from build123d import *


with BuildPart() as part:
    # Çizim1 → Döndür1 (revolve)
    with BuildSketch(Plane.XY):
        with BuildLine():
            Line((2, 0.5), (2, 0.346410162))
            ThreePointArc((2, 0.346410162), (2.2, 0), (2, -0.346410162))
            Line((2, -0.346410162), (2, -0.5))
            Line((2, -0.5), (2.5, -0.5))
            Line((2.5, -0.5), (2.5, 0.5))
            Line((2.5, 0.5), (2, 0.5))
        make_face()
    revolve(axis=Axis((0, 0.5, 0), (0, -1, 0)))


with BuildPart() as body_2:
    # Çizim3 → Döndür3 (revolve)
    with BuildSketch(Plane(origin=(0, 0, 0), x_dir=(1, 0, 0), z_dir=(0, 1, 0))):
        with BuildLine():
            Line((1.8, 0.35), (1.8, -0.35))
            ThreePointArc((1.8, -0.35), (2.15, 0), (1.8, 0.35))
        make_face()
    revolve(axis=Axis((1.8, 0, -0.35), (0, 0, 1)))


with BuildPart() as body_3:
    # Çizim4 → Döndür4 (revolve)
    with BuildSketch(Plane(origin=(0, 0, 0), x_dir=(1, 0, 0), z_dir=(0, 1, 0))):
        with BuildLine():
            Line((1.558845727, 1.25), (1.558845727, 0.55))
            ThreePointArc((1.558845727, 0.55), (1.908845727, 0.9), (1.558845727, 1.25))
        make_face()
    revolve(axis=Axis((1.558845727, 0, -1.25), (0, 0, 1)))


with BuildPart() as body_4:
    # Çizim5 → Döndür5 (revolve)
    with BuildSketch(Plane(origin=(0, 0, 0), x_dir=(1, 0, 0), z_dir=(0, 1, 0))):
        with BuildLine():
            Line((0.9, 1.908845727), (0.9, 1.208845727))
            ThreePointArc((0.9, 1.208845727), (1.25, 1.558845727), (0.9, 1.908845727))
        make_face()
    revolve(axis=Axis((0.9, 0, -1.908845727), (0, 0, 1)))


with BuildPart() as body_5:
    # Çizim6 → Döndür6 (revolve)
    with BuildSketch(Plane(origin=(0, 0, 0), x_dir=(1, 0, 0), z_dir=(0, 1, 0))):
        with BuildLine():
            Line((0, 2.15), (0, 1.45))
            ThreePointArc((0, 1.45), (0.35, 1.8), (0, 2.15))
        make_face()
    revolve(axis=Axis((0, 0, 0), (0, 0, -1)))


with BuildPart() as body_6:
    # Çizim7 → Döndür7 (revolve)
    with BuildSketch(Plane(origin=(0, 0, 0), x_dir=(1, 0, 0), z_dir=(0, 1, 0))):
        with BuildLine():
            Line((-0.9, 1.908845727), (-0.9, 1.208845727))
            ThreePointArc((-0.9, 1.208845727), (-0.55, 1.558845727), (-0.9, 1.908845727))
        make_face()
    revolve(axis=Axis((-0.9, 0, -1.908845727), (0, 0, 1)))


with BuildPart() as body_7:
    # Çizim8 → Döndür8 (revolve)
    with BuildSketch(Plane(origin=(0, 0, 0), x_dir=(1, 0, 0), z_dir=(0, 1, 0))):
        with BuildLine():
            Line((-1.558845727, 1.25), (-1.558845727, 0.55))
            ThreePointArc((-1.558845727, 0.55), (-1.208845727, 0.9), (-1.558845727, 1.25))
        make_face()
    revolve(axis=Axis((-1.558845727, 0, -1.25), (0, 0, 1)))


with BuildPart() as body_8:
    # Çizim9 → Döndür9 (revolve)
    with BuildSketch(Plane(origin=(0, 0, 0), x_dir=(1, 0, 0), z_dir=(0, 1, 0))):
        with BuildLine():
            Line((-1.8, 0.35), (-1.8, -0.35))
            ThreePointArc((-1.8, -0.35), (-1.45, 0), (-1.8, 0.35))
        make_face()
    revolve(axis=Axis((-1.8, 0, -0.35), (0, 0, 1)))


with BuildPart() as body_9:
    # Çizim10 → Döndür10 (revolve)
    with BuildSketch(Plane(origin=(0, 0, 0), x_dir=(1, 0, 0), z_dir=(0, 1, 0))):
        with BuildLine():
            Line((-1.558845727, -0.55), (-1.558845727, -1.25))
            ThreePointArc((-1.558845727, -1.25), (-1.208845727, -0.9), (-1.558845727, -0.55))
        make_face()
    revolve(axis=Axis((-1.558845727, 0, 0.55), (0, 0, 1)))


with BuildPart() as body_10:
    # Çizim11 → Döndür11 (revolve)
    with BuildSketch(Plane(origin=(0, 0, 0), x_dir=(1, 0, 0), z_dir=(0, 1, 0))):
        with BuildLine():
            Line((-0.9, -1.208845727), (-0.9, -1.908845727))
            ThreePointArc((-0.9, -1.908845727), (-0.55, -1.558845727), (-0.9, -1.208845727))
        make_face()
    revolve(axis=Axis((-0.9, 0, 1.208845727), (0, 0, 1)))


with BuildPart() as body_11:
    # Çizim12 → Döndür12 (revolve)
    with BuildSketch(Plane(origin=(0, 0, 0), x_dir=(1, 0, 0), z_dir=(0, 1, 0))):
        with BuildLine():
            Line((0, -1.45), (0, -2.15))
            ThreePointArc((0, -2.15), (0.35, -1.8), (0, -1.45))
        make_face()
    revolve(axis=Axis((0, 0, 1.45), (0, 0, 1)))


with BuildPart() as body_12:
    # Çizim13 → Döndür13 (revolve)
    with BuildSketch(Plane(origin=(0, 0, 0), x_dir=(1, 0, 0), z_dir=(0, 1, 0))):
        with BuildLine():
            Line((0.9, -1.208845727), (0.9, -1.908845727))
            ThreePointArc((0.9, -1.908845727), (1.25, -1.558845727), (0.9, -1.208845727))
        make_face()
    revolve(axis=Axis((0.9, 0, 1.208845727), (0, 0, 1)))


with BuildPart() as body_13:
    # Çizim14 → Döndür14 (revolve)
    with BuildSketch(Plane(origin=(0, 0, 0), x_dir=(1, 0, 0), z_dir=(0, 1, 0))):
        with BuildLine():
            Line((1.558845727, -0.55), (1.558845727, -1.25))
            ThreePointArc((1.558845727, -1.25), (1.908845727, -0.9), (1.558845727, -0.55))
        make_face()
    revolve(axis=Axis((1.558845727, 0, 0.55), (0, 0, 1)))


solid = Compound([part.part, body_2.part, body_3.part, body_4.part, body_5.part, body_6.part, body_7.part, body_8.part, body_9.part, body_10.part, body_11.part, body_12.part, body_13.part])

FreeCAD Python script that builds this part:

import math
import FreeCAD as App
import Part
import Sketcher

V = App.Vector

doc = App.newDocument("Part")
body = doc.addObject("PartDesign::Body", "Body")

sketch1 = doc.addObject("Sketcher::SketchObject", "Sketch")
body.addObject(sketch1)
sketch1.AttachmentSupport = (doc.XY_Plane, [""])
sketch1.MapMode = "FlatFace"
sketch1.addGeometry([
    Part.LineSegment(V(2, 0.5, 0), V(2, 0.34641, 0)),
    Part.ArcOfCircle(Part.Circle(V(1.8, 0, 0), V(0, 0, 1), 0.4), math.radians(-60), math.radians(60)),
    Part.LineSegment(V(2, -0.34641, 0), V(2, -0.5, 0)),
    Part.LineSegment(V(2, -0.5, 0), V(2.5, -0.5, 0)),
    Part.LineSegment(V(2.5, -0.5, 0), V(2.5, 0.5, 0)),
    Part.LineSegment(V(2.5, 0.5, 0), V(2, 0.5, 0)),
], False)
sketch1.addConstraint([
    Sketcher.Constraint("Coincident", 0, 2, 1, 2),
    Sketcher.Constraint("Coincident", 1, 1, 2, 1),
    Sketcher.Constraint("Coincident", 2, 2, 3, 1),
    Sketcher.Constraint("Coincident", 3, 2, 4, 1),
    Sketcher.Constraint("Coincident", 4, 2, 5, 1),
    Sketcher.Constraint("Coincident", 5, 2, 0, 1),
    Sketcher.Constraint("Vertical", 0),
    Sketcher.Constraint("Vertical", 2),
    Sketcher.Constraint("Horizontal", 3),
    Sketcher.Constraint("Vertical", 4),
    Sketcher.Constraint("Horizontal", 5),
    Sketcher.Constraint("Symmetric", 0, 2, 1, 1, -1),
    Sketcher.Constraint("Equal", 0, 2),
    Sketcher.Constraint("Radius", 1, 0.4),
    Sketcher.Constraint("DistanceY", 4, 1, 4, 2, 1.0),
    Sketcher.Constraint("DistanceX", 3, 1, 3, 2, 0.5),
    Sketcher.Constraint("DistanceX", -1, 1, 0, 2, 2.0),
    Sketcher.Constraint("DistanceX", -1, 1, 1, 3, 1.8),
])
revolution = doc.addObject("PartDesign::Revolution", "Revolution")
body.addObject(revolution)
revolution.Profile = sketch1
revolution.ReferenceAxis = (sketch1, ["V_Axis"])
revolution.Angle = 360
body2 = doc.addObject("PartDesign::Body", "Body001")

sketch2 = doc.addObject("Sketcher::SketchObject", "Sketch001")
body2.addObject(sketch2)
sketch2.AttachmentSupport = (doc.getObject("XZ_Plane001"), [""])
sketch2.MapMode = "FlatFace"
sketch2.addGeometry([
    Part.LineSegment(V(1.8, -0.35, 0), V(1.8, 0.35, 0)),
    Part.ArcOfCircle(Part.Circle(V(1.8, 0, 0), V(0, 0, 1), 0.35), math.radians(-90), math.radians(90)),
], False)
sketch2.addGeometry(Part.LineSegment(V(1.8, -0.35, 0), V(1.8, 0.35, 0)), True)
sketch2.addConstraint([
    Sketcher.Constraint("Coincident", 0, 1, 1, 1),
    Sketcher.Constraint("Coincident", 1, 2, 0, 2),
    Sketcher.Constraint("Vertical", 0),
    Sketcher.Constraint("Vertical", 2),
    Sketcher.Constraint("Coincident", 2, 1, 0, 1),
    Sketcher.Constraint("PointOnObject", 1, 3, -1),
    Sketcher.Constraint("Vertical", 1, 3, 0, 1),
    Sketcher.Constraint("Equal", 0, 2),
    Sketcher.Constraint("Radius", 1, 0.35),
    Sketcher.Constraint("DistanceX", -1, 1, 1, 3, 1.8),
])
revolution2 = doc.addObject("PartDesign::Revolution", "Revolution001")
body2.addObject(revolution2)
revolution2.Profile = sketch2
revolution2.ReferenceAxis = (sketch2, ["Axis0"])
revolution2.Angle = 360
body3 = doc.addObject("PartDesign::Body", "Body002")

sketch3 = doc.addObject("Sketcher::SketchObject", "Sketch002")
body3.addObject(sketch3)
sketch3.AttachmentSupport = (doc.getObject("XZ_Plane002"), [""])
sketch3.MapMode = "FlatFace"
sketch3.addGeometry([
    Part.LineSegment(V(1.558846, -1.25, 0), V(1.558846, -0.55, 0)),
    Part.ArcOfCircle(Part.Circle(V(1.558846, -0.9, 0), V(0, 0, 1), 0.35), math.radians(-90), math.radians(90)),
], False)
sketch3.addGeometry(Part.LineSegment(V(1.558846, -1.25, 0), V(1.558846, -0.55, 0)), True)
sketch3.addConstraint([
    Sketcher.Constraint("Coincident", 0, 1, 1, 1),
    Sketcher.Constraint("Coincident", 1, 2, 0, 2),
    Sketcher.Constraint("Vertical", 0),
    Sketcher.Constraint("Vertical", 2),
    Sketcher.Constraint("Coincident", 2, 1, 0, 1),
    Sketcher.Constraint("Vertical", 1, 3, 0, 1),
    Sketcher.Constraint("Equal", 0, 2),
    Sketcher.Constraint("Radius", 1, 0.35),
    Sketcher.Constraint("DistanceY", 1, 3, -1, 1, 0.9),
    Sketcher.Constraint("DistanceX", -1, 1, 1, 3, 1.558846),
])
revolution3 = doc.addObject("PartDesign::Revolution", "Revolution002")
body3.addObject(revolution3)
revolution3.Profile = sketch3
revolution3.ReferenceAxis = (sketch3, ["Axis0"])
revolution3.Angle = 360
body4 = doc.addObject("PartDesign::Body", "Body003")

sketch4 = doc.addObject("Sketcher::SketchObject", "Sketch003")
body4.addObject(sketch4)
sketch4.AttachmentSupport = (doc.getObject("XZ_Plane003"), [""])
sketch4.MapMode = "FlatFace"
sketch4.addGeometry([
    Part.LineSegment(V(0.9, -1.908846, 0), V(0.9, -1.208846, 0)),
    Part.ArcOfCircle(Part.Circle(V(0.9, -1.558846, 0), V(0, 0, 1), 0.35), math.radians(-90), math.radians(90)),
], False)
sketch4.addGeometry(Part.LineSegment(V(0.9, -1.908846, 0), V(0.9, -1.208846, 0)), True)
sketch4.addConstraint([
    Sketcher.Constraint("Coincident", 0, 1, 1, 1),
    Sketcher.Constraint("Coincident", 1, 2, 0, 2),
    Sketcher.Constraint("Vertical", 0),
    Sketcher.Constraint("Vertical", 2),
    Sketcher.Constraint("Coincident", 2, 1, 0, 1),
    Sketcher.Constraint("Vertical", 1, 3, 0, 1),
    Sketcher.Constraint("Equal", 0, 2),
    Sketcher.Constraint("Radius", 1, 0.35),
    Sketcher.Constraint("DistanceX", -1, 1, 1, 3, 0.9),
    Sketcher.Constraint("DistanceY", 1, 3, -1, 1, 1.558846),
])
revolution4 = doc.addObject("PartDesign::Revolution", "Revolution003")
body4.addObject(revolution4)
revolution4.Profile = sketch4
revolution4.ReferenceAxis = (sketch4, ["Axis0"])
revolution4.Angle = 360
body5 = doc.addObject("PartDesign::Body", "Body004")

sketch5 = doc.addObject("Sketcher::SketchObject", "Sketch004")
body5.addObject(sketch5)
sketch5.AttachmentSupport = (doc.getObject("XZ_Plane004"), [""])
sketch5.MapMode = "FlatFace"
sketch5.addGeometry([
    Part.LineSegment(V(0, -2.15, 0), V(0, -1.45, 0)),
    Part.ArcOfCircle(Part.Circle(V(0, -1.8, 0), V(0, 0, 1), 0.35), math.radians(-90), math.radians(90)),
], False)
sketch5.addConstraint([
    Sketcher.Constraint("Coincident", 0, 1, 1, 1),
    Sketcher.Constraint("Coincident", 1, 2, 0, 2),
    Sketcher.Constraint("Vertical", 0),
    Sketcher.Constraint("PointOnObject", 1, 3, -2),
    Sketcher.Constraint("PointOnObject", 0, 1, -2),
    Sketcher.Constraint("Radius", 1, 0.35),
    Sketcher.Constraint("DistanceY", 1, 3, -1, 1, 1.8),
])
revolution5 = doc.addObject("PartDesign::Revolution", "Revolution004")
body5.addObject(revolution5)
revolution5.Profile = sketch5
revolution5.ReferenceAxis = (sketch5, ["V_Axis"])
revolution5.Angle = 360
body6 = doc.addObject("PartDesign::Body", "Body005")

sketch6 = doc.addObject("Sketcher::SketchObject", "Sketch005")
body6.addObject(sketch6)
sketch6.AttachmentSupport = (doc.getObject("XZ_Plane005"), [""])
sketch6.MapMode = "FlatFace"
sketch6.addGeometry([
    Part.LineSegment(V(-0.9, -1.908846, 0), V(-0.9, -1.208846, 0)),
    Part.ArcOfCircle(Part.Circle(V(-0.9, -1.558846, 0), V(0, 0, 1), 0.35), math.radians(-90), math.radians(90)),
], False)
sketch6.addGeometry(Part.LineSegment(V(-0.9, -1.908846, 0), V(-0.9, -1.208846, 0)), True)
sketch6.addConstraint([
    Sketcher.Constraint("Coincident", 0, 1, 1, 1),
    Sketcher.Constraint("Coincident", 1, 2, 0, 2),
    Sketcher.Constraint("Vertical", 0),
    Sketcher.Constraint("Vertical", 2),
    Sketcher.Constraint("Coincident", 2, 1, 0, 1),
    Sketcher.Constraint("Vertical", 1, 3, 0, 1),
    Sketcher.Constraint("Equal", 0, 2),
    Sketcher.Constraint("Radius", 1, 0.35),
    Sketcher.Constraint("DistanceX", 1, 3, -1, 1, 0.9),
    Sketcher.Constraint("DistanceY", 1, 3, -1, 1, 1.558846),
])
revolution6 = doc.addObject("PartDesign::Revolution", "Revolution005")
body6.addObject(revolution6)
revolution6.Profile = sketch6
revolution6.ReferenceAxis = (sketch6, ["Axis0"])
revolution6.Angle = 360
body7 = doc.addObject("PartDesign::Body", "Body006")

sketch7 = doc.addObject("Sketcher::SketchObject", "Sketch006")
body7.addObject(sketch7)
sketch7.AttachmentSupport = (doc.getObject("XZ_Plane006"), [""])
sketch7.MapMode = "FlatFace"
sketch7.addGeometry([
    Part.LineSegment(V(-1.558846, -1.25, 0), V(-1.558846, -0.55, 0)),
    Part.ArcOfCircle(Part.Circle(V(-1.558846, -0.9, 0), V(0, 0, 1), 0.35), math.radians(-90), math.radians(90)),
], False)
sketch7.addGeometry(Part.LineSegment(V(-1.558846, -1.25, 0), V(-1.558846, -0.55, 0)), True)
sketch7.addConstraint([
    Sketcher.Constraint("Coincident", 0, 1, 1, 1),
    Sketcher.Constraint("Coincident", 1, 2, 0, 2),
    Sketcher.Constraint("Vertical", 0),
    Sketcher.Constraint("Vertical", 2),
    Sketcher.Constraint("Coincident", 2, 1, 0, 1),
    Sketcher.Constraint("Vertical", 1, 3, 0, 1),
    Sketcher.Constraint("Equal", 0, 2),
    Sketcher.Constraint("Radius", 1, 0.35),
    Sketcher.Constraint("DistanceY", 1, 3, -1, 1, 0.9),
    Sketcher.Constraint("DistanceX", 1, 3, -1, 1, 1.558846),
])
revolution7 = doc.addObject("PartDesign::Revolution", "Revolution006")
body7.addObject(revolution7)
revolution7.Profile = sketch7
revolution7.ReferenceAxis = (sketch7, ["Axis0"])
revolution7.Angle = 360
body8 = doc.addObject("PartDesign::Body", "Body007")

sketch8 = doc.addObject("Sketcher::SketchObject", "Sketch007")
body8.addObject(sketch8)
sketch8.AttachmentSupport = (doc.getObject("XZ_Plane007"), [""])
sketch8.MapMode = "FlatFace"
sketch8.addGeometry([
    Part.LineSegment(V(-1.8, -0.35, 0), V(-1.8, 0.35, 0)),
    Part.ArcOfCircle(Part.Circle(V(-1.8, 0, 0), V(0, 0, 1), 0.35), math.radians(-90), math.radians(90)),
], False)
sketch8.addGeometry(Part.LineSegment(V(-1.8, -0.35, 0), V(-1.8, 0.35, 0)), True)
sketch8.addConstraint([
    Sketcher.Constraint("Coincident", 0, 1, 1, 1),
    Sketcher.Constraint("Coincident", 1, 2, 0, 2),
    Sketcher.Constraint("Vertical", 0),
    Sketcher.Constraint("Vertical", 2),
    Sketcher.Constraint("Coincident", 2, 1, 0, 1),
    Sketcher.Constraint("PointOnObject", 1, 3, -1),
    Sketcher.Constraint("Vertical", 1, 3, 0, 1),
    Sketcher.Constraint("Equal", 0, 2),
    Sketcher.Constraint("Radius", 1, 0.35),
    Sketcher.Constraint("DistanceX", 1, 3, -1, 1, 1.8),
])
revolution8 = doc.addObject("PartDesign::Revolution", "Revolution007")
body8.addObject(revolution8)
revolution8.Profile = sketch8
revolution8.ReferenceAxis = (sketch8, ["Axis0"])
revolution8.Angle = 360
body9 = doc.addObject("PartDesign::Body", "Body008")

sketch9 = doc.addObject("Sketcher::SketchObject", "Sketch008")
body9.addObject(sketch9)
sketch9.AttachmentSupport = (doc.getObject("XZ_Plane008"), [""])
sketch9.MapMode = "FlatFace"
sketch9.addGeometry([
    Part.LineSegment(V(-1.558846, 0.55, 0), V(-1.558846, 1.25, 0)),
    Part.ArcOfCircle(Part.Circle(V(-1.558846, 0.9, 0), V(0, 0, 1), 0.35), math.radians(-90), math.radians(90)),
], False)
sketch9.addGeometry(Part.LineSegment(V(-1.558846, 0.55, 0), V(-1.558846, 1.25, 0)), True)
sketch9.addConstraint([
    Sketcher.Constraint("Coincident", 0, 1, 1, 1),
    Sketcher.Constraint("Coincident", 1, 2, 0, 2),
    Sketcher.Constraint("Vertical", 0),
    Sketcher.Constraint("Vertical", 2),
    Sketcher.Constraint("Coincident", 2, 1, 0, 1),
    Sketcher.Constraint("Vertical", 1, 3, 0, 1),
    Sketcher.Constraint("Equal", 0, 2),
    Sketcher.Constraint("Radius", 1, 0.35),
    Sketcher.Constraint("DistanceY", -1, 1, 1, 3, 0.9),
    Sketcher.Constraint("DistanceX", 1, 3, -1, 1, 1.558846),
])
revolution9 = doc.addObject("PartDesign::Revolution", "Revolution008")
body9.addObject(revolution9)
revolution9.Profile = sketch9
revolution9.ReferenceAxis = (sketch9, ["Axis0"])
revolution9.Angle = 360
body10 = doc.addObject("PartDesign::Body", "Body009")

sketch10 = doc.addObject("Sketcher::SketchObject", "Sketch009")
body10.addObject(sketch10)
sketch10.AttachmentSupport = (doc.getObject("XZ_Plane009"), [""])
sketch10.MapMode = "FlatFace"
sketch10.addGeometry([
    Part.LineSegment(V(-0.9, 1.208846, 0), V(-0.9, 1.908846, 0)),
    Part.ArcOfCircle(Part.Circle(V(-0.9, 1.558846, 0), V(0, 0, 1), 0.35), math.radians(-90), math.radians(90)),
], False)
sketch10.addGeometry(Part.LineSegment(V(-0.9, 1.208846, 0), V(-0.9, 1.908846, 0)), True)
sketch10.addConstraint([
    Sketcher.Constraint("Coincident", 0, 1, 1, 1),
    Sketcher.Constraint("Coincident", 1, 2, 0, 2),
    Sketcher.Constraint("Vertical", 0),
    Sketcher.Constraint("Vertical", 2),
    Sketcher.Constraint("Coincident", 2, 1, 0, 1),
    Sketcher.Constraint("Vertical", 1, 3, 0, 1),
    Sketcher.Constraint("Equal", 0, 2),
    Sketcher.Constraint("Radius", 1, 0.35),
    Sketcher.Constraint("DistanceX", 1, 3, -1, 1, 0.9),
    Sketcher.Constraint("DistanceY", -1, 1, 1, 3, 1.558846),
])
revolution10 = doc.addObject("PartDesign::Revolution", "Revolution009")
body10.addObject(revolution10)
revolution10.Profile = sketch10
revolution10.ReferenceAxis = (sketch10, ["Axis0"])
revolution10.Angle = 360
body11 = doc.addObject("PartDesign::Body", "Body010")

sketch11 = doc.addObject("Sketcher::SketchObject", "Sketch010")
body11.addObject(sketch11)
sketch11.AttachmentSupport = (doc.getObject("XZ_Plane010"), [""])
sketch11.MapMode = "FlatFace"
sketch11.addGeometry([
    Part.LineSegment(V(0, 1.45, 0), V(0, 2.15, 0)),
    Part.ArcOfCircle(Part.Circle(V(0, 1.8, 0), V(0, 0, 1), 0.35), math.radians(-90), math.radians(90)),
], False)
sketch11.addConstraint([
    Sketcher.Constraint("Coincident", 0, 1, 1, 1),
    Sketcher.Constraint("Coincident", 1, 2, 0, 2),
    Sketcher.Constraint("Vertical", 0),
    Sketcher.Constraint("PointOnObject", 1, 3, -2),
    Sketcher.Constraint("PointOnObject", 0, 1, -2),
    Sketcher.Constraint("Radius", 1, 0.35),
    Sketcher.Constraint("DistanceY", -1, 1, 1, 3, 1.8),
])
revolution11 = doc.addObject("PartDesign::Revolution", "Revolution010")
body11.addObject(revolution11)
revolution11.Profile = sketch11
revolution11.ReferenceAxis = (sketch11, ["V_Axis"])
revolution11.Angle = 360
body12 = doc.addObject("PartDesign::Body", "Body011")

sketch12 = doc.addObject("Sketcher::SketchObject", "Sketch011")
body12.addObject(sketch12)
sketch12.AttachmentSupport = (doc.getObject("XZ_Plane011"), [""])
sketch12.MapMode = "FlatFace"
sketch12.addGeometry([
    Part.LineSegment(V(0.9, 1.208846, 0), V(0.9, 1.908846, 0)),
    Part.ArcOfCircle(Part.Circle(V(0.9, 1.558846, 0), V(0, 0, 1), 0.35), math.radians(-90), math.radians(90)),
], False)
sketch12.addGeometry(Part.LineSegment(V(0.9, 1.208846, 0), V(0.9, 1.908846, 0)), True)
sketch12.addConstraint([
    Sketcher.Constraint("Coincident", 0, 1, 1, 1),
    Sketcher.Constraint("Coincident", 1, 2, 0, 2),
    Sketcher.Constraint("Vertical", 0),
    Sketcher.Constraint("Vertical", 2),
    Sketcher.Constraint("Coincident", 2, 1, 0, 1),
    Sketcher.Constraint("Vertical", 1, 3, 0, 1),
    Sketcher.Constraint("Equal", 0, 2),
    Sketcher.Constraint("Radius", 1, 0.35),
    Sketcher.Constraint("DistanceX", -1, 1, 1, 3, 0.9),
    Sketcher.Constraint("DistanceY", -1, 1, 1, 3, 1.558846),
])
revolution12 = doc.addObject("PartDesign::Revolution", "Revolution011")
body12.addObject(revolution12)
revolution12.Profile = sketch12
revolution12.ReferenceAxis = (sketch12, ["Axis0"])
revolution12.Angle = 360
body13 = doc.addObject("PartDesign::Body", "Body012")

sketch13 = doc.addObject("Sketcher::SketchObject", "Sketch012")
body13.addObject(sketch13)
sketch13.AttachmentSupport = (doc.getObject("XZ_Plane012"), [""])
sketch13.MapMode = "FlatFace"
sketch13.addGeometry([
    Part.LineSegment(V(1.558846, 0.55, 0), V(1.558846, 1.25, 0)),
    Part.ArcOfCircle(Part.Circle(V(1.558846, 0.9, 0), V(0, 0, 1), 0.35), math.radians(-90), math.radians(90)),
], False)
sketch13.addGeometry(Part.LineSegment(V(1.558846, 0.55, 0), V(1.558846, 1.25, 0)), True)
sketch13.addConstraint([
    Sketcher.Constraint("Coincident", 0, 1, 1, 1),
    Sketcher.Constraint("Coincident", 1, 2, 0, 2),
    Sketcher.Constraint("Vertical", 0),
    Sketcher.Constraint("Vertical", 2),
    Sketcher.Constraint("Coincident", 2, 1, 0, 1),
    Sketcher.Constraint("Vertical", 1, 3, 0, 1),
    Sketcher.Constraint("Equal", 0, 2),
    Sketcher.Constraint("Radius", 1, 0.35),
    Sketcher.Constraint("DistanceY", -1, 1, 1, 3, 0.9),
    Sketcher.Constraint("DistanceX", -1, 1, 1, 3, 1.558846),
])
revolution13 = doc.addObject("PartDesign::Revolution", "Revolution012")
body13.addObject(revolution13)
revolution13.Profile = sketch13
revolution13.ReferenceAxis = (sketch13, ["Axis0"])
revolution13.Angle = 360

doc.recompute()
